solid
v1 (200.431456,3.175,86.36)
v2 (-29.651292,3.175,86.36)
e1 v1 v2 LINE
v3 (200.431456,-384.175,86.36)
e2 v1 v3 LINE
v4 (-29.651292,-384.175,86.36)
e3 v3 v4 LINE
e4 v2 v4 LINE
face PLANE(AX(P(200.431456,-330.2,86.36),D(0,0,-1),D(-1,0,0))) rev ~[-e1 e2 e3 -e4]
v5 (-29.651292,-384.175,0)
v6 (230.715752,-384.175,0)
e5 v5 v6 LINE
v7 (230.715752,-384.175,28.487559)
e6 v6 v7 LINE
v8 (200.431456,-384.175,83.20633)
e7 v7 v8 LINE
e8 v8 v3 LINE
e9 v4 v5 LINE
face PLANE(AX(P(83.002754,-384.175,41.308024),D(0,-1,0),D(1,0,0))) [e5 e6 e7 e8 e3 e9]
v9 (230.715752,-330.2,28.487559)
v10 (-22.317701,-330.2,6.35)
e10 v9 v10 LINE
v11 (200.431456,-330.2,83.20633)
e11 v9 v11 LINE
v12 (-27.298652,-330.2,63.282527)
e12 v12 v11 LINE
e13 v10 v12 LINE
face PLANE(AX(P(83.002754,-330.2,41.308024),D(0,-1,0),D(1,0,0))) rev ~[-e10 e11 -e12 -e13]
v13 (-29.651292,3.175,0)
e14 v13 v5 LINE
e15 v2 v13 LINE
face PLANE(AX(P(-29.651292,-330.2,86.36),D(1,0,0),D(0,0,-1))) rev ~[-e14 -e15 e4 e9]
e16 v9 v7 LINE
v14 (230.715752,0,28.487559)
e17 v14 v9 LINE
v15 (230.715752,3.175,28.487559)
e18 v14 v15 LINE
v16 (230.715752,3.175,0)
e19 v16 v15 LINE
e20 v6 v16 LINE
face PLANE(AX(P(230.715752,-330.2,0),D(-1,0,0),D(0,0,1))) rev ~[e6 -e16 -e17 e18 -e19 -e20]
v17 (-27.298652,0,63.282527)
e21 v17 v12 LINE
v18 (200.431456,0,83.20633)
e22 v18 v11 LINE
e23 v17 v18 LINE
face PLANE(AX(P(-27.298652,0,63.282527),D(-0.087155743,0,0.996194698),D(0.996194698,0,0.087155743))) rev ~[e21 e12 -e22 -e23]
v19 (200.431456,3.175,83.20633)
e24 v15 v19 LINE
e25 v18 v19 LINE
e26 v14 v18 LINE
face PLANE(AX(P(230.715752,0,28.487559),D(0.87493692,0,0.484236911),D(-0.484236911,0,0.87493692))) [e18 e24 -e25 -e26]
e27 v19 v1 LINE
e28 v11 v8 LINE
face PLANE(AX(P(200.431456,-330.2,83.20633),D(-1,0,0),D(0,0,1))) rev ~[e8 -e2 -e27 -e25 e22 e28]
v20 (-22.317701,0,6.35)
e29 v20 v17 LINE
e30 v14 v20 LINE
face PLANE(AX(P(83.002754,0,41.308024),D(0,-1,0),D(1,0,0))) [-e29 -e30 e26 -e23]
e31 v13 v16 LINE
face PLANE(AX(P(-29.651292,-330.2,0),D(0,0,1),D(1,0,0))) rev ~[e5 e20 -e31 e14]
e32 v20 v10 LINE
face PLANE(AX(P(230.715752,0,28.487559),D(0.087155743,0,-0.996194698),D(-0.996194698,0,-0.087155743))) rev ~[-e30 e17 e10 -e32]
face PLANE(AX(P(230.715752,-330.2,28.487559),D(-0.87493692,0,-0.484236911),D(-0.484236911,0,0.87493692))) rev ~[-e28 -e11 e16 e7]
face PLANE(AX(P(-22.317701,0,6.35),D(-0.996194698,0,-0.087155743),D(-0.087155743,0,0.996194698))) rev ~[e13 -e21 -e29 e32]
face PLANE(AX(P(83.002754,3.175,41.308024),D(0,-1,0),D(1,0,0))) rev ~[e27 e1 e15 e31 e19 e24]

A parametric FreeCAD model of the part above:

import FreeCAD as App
import Part
import Sketcher
Q = App.Units.Quantity


def add_polygon(sketch, points):
    """Adds a closed chain of lines whose ends are joined by coincident constraints."""
    first, n = sketch.GeometryCount, len(points)
    for a, b in zip(points, points[1:] + points[:1]):
        sketch.addGeometry(Part.LineSegment(App.Vector(*a, 0), App.Vector(*b, 0)), False)
    for i in range(n):
        sketch.addConstraint(Sketcher.Constraint("Coincident", first + i, 2, first + (i + 1) % n, 1))

doc = App.newDocument("Part")
body = doc.addObject("PartDesign::Body", "Body")

sketch1 = doc.addObject("Sketcher::SketchObject", "Sketch")
body.addObject(sketch1)
sketch1.AttachmentSupport = (doc.XZ_Plane, [""])
sketch1.MapMode = "FlatFace"
add_polygon(sketch1, [(-29.7, 86.4), (-29.7, 0), (230.7, 0), (230.7, 28.5), (200.4, 83.2), (200.4, 86.4)])
sketch1.addConstraint(Sketcher.Constraint("Vertical", 0))
sketch1.addConstraint(Sketcher.Constraint("Horizontal", 1))
sketch1.addConstraint(Sketcher.Constraint("Vertical", 2))
sketch1.addConstraint(Sketcher.Constraint("Vertical", 4))
sketch1.addConstraint(Sketcher.Constraint("Horizontal", 5))
sketch1.addConstraint(Sketcher.Constraint("PointOnObject", 0, 2, -1))
sketch1.addConstraint(Sketcher.Constraint("DistanceY", 0, 2, 0, 1, Q("3.4 in")))
sketch1.addConstraint(Sketcher.Constraint("DistanceY", 2, 1, 2, 2, 28.487559))
sketch1.addConstraint(Sketcher.Constraint("DistanceY", 4, 1, 4, 2, 3.15367))
sketch1.addConstraint(Sketcher.Constraint("DistanceX", 1, 1, 1, 2, 260.367044))
sketch1.addConstraint(Sketcher.Constraint("DistanceX", 5, 2, 5, 1, 230.082748))
sketch1.addConstraint(Sketcher.Constraint("DistanceX", 0, 2, -1, 1, 29.651292))
pad1 = doc.addObject("PartDesign::Pad", "Pad")
body.addObject(pad1)
pad1.Profile = sketch1
pad1.Length = Q("0.125 in")
pad1.Reversed = True

sketch2 = doc.addObject("Sketcher::SketchObject", "Sketch001")
body.addObject(sketch2)
sketch2.AttachmentSupport = (doc.XZ_Plane, [""])
sketch2.MapMode = "FlatFace"
add_polygon(sketch2, [(-29.7, 86.4), (-29.7, 0), (230.7, 0), (230.7, 28.5), (-22.3, 6.3), (-27.3, 63.3), (200.4, 83.2), (200.4, 86.4)])
sketch2.addConstraint(Sketcher.Constraint("Vertical", 0))
sketch2.addConstraint(Sketcher.Constraint("Horizontal", 1))
sketch2.addConstraint(Sketcher.Constraint("Vertical", 2))
sketch2.addConstraint(Sketcher.Constraint("Vertical", 6))
sketch2.addConstraint(Sketcher.Constraint("Horizontal", 7))
sketch2.addConstraint(Sketcher.Constraint("PointOnObject", 0, 2, -1))
sketch2.addConstraint(Sketcher.Constraint("Perpendicular", 3, 4))
sketch2.addConstraint(Sketcher.Constraint("Perpendicular", 4, 5))
sketch2.addConstraint(Sketcher.Constraint("Distance", 3, Q("10 in")))
sketch2.addConstraint(Sketcher.Constraint("Distance", 5, Q("9 in")))
sketch2.addConstraint(Sketcher.Constraint("DistanceY", 0, 2, 0, 1, Q("3.4 in")))
sketch2.addConstraint(Sketcher.Constraint("Angle", 3, Q("-175 deg")))
sketch2.addConstraint(Sketcher.Constraint("Distance", 4, Q("2.25 in")))
sketch2.addConstraint(Sketcher.Constraint("DistanceY", -1, 1, 3, 2, Q("0.25 in")))
sketch2.addConstraint(Sketcher.Constraint("DistanceX", 3, 2, -1, 1, 22.317701))
sketch2.addConstraint(Sketcher.Constraint("DistanceX", 1, 1, 1, 2, 260.367044))
pad2 = doc.addObject("PartDesign::Pad", "Pad001")
body.addObject(pad2)
pad2.Profile = sketch2
pad2.Length = Q("13 in")

sketch3 = doc.addObject("Sketcher::SketchObject", "Sketch002")
body.addObject(sketch3)
sketch3.AttachmentSupport = (doc.XZ_Plane, [""])
sketch3.MapMode = "FlatFace"
sketch3.AttachmentOffset = App.Placement(App.Vector(0, 0, 13 * 25.4), App.Rotation())
add_polygon(sketch3, [(200.4, 83.2), (200.4, 86.4), (-29.7, 86.4), (-29.7, 0), (230.7, 0), (230.7, 28.5)])
sketch3.addConstraint(Sketcher.Constraint("Vertical", 0))
sketch3.addConstraint(Sketcher.Constraint("Horizontal", 1))
sketch3.addConstraint(Sketcher.Constraint("Vertical", 2))
sketch3.addConstraint(Sketcher.Constraint("Horizontal", 3))
sketch3.addConstraint(Sketcher.Constraint("Vertical", 4))
sketch3.addConstraint(Sketcher.Constraint("PointOnObject", 2, 2, -1))
sketch3.addConstraint(Sketcher.Constraint("DistanceY", 2, 2, 2, 1, Q("3.4 in")))
sketch3.addConstraint(Sketcher.Constraint("DistanceY", 0, 1, 0, 2, 3.15367))
sketch3.addConstraint(Sketcher.Constraint("DistanceY", 4, 1, 4, 2, 28.487559))
sketch3.addConstraint(Sketcher.Constraint("DistanceX", 1, 2, 1, 1, 230.082748))
sketch3.addConstraint(Sketcher.Constraint("DistanceX", 3, 1, 3, 2, 260.367044))
sketch3.addConstraint(Sketcher.Constraint("DistanceX", 1, 2, -1, 1, 29.651292))
pad3 = doc.addObject("PartDesign::Pad", "Pad002")
body.addObject(pad3)
pad3.Profile = sketch3
pad3.Length = Q("2.125 in")

doc.recompute()
